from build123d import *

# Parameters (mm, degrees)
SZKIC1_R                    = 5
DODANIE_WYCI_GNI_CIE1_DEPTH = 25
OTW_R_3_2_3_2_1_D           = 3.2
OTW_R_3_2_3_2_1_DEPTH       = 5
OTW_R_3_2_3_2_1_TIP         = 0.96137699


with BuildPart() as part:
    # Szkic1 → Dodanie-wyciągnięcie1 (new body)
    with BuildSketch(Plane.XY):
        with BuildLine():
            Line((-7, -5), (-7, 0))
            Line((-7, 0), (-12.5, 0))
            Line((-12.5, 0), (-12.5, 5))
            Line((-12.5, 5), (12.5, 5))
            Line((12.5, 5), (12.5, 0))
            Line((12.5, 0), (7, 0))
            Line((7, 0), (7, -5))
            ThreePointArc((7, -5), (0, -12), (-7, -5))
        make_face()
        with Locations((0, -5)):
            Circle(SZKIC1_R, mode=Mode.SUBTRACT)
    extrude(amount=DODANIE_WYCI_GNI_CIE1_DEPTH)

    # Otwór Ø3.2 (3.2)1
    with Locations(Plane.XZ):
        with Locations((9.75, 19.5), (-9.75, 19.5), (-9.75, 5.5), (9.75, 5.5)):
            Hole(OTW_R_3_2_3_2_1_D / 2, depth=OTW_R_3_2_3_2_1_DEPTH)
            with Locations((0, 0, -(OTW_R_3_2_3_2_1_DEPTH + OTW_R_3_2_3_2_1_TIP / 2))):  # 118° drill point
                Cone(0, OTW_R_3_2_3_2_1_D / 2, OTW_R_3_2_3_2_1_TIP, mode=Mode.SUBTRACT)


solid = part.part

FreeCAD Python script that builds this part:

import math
import FreeCAD as App
import Part
import Sketcher

doc = App.newDocument("Part")
body = doc.addObject("PartDesign::Body", "Body")

# Sketch on XY plane
sketch1 = body.newObject("Sketcher::SketchObject", "Sketch")
sketch1.AttachmentSupport = (doc.getObject("XY_Plane"), [""])
sketch1.MapMode = "FlatFace"
sketch1.addGeometry([
    Part.LineSegment(App.Vector(-7, 0, 0), App.Vector(-7, -5, 0)),  # 0
    Part.ArcOfCircle(Part.Circle(App.Vector(0, -5, 0), App.Vector(0, 0, 1), 7), math.radians(180), math.radians(360)),  # 1
    Part.LineSegment(App.Vector(7, -5, 0), App.Vector(7, 0, 0)),  # 2
    Part.LineSegment(App.Vector(7, 0, 0), App.Vector(12.5, 0, 0)),  # 3
    Part.LineSegment(App.Vector(12.5, 0, 0), App.Vector(12.5, 5, 0)),  # 4
    Part.LineSegment(App.Vector(12.5, 5, 0), App.Vector(-12.5, 5, 0)),  # 5
    Part.LineSegment(App.Vector(-12.5, 5, 0), App.Vector(-12.5, 0, 0)),  # 6
    Part.LineSegment(App.Vector(-12.5, 0, 0), App.Vector(-7, 0, 0)),  # 7
    Part.Circle(App.Vector(0, -5, 0), App.Vector(0, 0, 1), 5),  # 8
], False)
sketch1.addConstraint([
    Sketcher.Constraint("Tangent", 0, 2, 1, 1),
    Sketcher.Constraint("Tangent", 1, 2, 2, 1),
    Sketcher.Constraint("Coincident", 2, 2, 3, 1),
    Sketcher.Constraint("Coincident", 3, 2, 4, 1),
    Sketcher.Constraint("Coincident", 4, 2, 5, 1),
    Sketcher.Constraint("Coincident", 5, 2, 6, 1),
    Sketcher.Constraint("Coincident", 6, 2, 7, 1),
    Sketcher.Constraint("Coincident", 7, 2, 0, 1),
    Sketcher.Constraint("Vertical", 0),
    Sketcher.Constraint("Vertical", 2),
    Sketcher.Constraint("Horizontal", 3),
    Sketcher.Constraint("Vertical", 4),
    Sketcher.Constraint("Horizontal", 5),
    Sketcher.Constraint("Vertical", 6),
    Sketcher.Constraint("Horizontal", 7),
    Sketcher.Constraint("Coincident", 8, 3, 1, 3),
    Sketcher.Constraint("Symmetric", 3, 2, 6, 2, -1, 1),
    Sketcher.Constraint("Symmetric", 2, 2, 7, 2, -2),
    Sketcher.Constraint("Equal", 2, 4),
    Sketcher.Constraint("Diameter", 8, 10.0),
    Sketcher.Constraint("Radius", 1, 7.0),
    Sketcher.Constraint("DistanceX", 5, 2, 5, 1, 25.0),
    Sketcher.Constraint("DistanceY", 0, 2, 0, 1, 5.0),
])
pad1 = body.newObject("PartDesign::Pad", "Pad")
pad1.Profile = sketch1
pad1.Length = 25

# Sketch on XZ plane
sketch2 = body.newObject("Sketcher::SketchObject", "Sketch001")
sketch2.AttachmentSupport = (doc.getObject("XZ_Plane"), [""])
sketch2.MapMode = "FlatFace"
sketch2.addGeometry([
    Part.Circle(App.Vector(9.75, 19.5, 0), App.Vector(0, 0, 1), 1.6),
    Part.Circle(App.Vector(-9.75, 19.5, 0), App.Vector(0, 0, 1), 1.6),
    Part.Circle(App.Vector(-9.75, 5.5, 0), App.Vector(0, 0, 1), 1.6),
    Part.Circle(App.Vector(9.75, 5.5, 0), App.Vector(0, 0, 1), 1.6),
], False)
sketch2.addConstraint([
    Sketcher.Constraint("Equal", 0, 1),
    Sketcher.Constraint("Equal", 1, 2),
    Sketcher.Constraint("Equal", 2, 3),
    Sketcher.Constraint("Symmetric", 0, 3, 1, 3, -2),
    Sketcher.Constraint("Symmetric", 2, 3, 3, 3, -2),
    Sketcher.Constraint("Vertical", 1, 3, 2, 3),
    Sketcher.Constraint("Diameter", 0, 3.2),
    Sketcher.Constraint("DistanceY", 2, 3, 1, 3, 14.0),
    Sketcher.Constraint("DistanceY", -1, 1, 0, 3, 19.5),
    Sketcher.Constraint("DistanceX", 1, 3, 0, 3, 19.5),
])
doc.recompute()
hole = body.newObject("PartDesign::Hole", "Hole")
hole.Profile = sketch2
hole.ThreadType = "None"
hole.Diameter = 3.2
hole.DepthType = "Dimension"
hole.Depth = 5
hole.DrillPoint = "Angled"
hole.DrillPointAngle = 118

doc.recompute()
